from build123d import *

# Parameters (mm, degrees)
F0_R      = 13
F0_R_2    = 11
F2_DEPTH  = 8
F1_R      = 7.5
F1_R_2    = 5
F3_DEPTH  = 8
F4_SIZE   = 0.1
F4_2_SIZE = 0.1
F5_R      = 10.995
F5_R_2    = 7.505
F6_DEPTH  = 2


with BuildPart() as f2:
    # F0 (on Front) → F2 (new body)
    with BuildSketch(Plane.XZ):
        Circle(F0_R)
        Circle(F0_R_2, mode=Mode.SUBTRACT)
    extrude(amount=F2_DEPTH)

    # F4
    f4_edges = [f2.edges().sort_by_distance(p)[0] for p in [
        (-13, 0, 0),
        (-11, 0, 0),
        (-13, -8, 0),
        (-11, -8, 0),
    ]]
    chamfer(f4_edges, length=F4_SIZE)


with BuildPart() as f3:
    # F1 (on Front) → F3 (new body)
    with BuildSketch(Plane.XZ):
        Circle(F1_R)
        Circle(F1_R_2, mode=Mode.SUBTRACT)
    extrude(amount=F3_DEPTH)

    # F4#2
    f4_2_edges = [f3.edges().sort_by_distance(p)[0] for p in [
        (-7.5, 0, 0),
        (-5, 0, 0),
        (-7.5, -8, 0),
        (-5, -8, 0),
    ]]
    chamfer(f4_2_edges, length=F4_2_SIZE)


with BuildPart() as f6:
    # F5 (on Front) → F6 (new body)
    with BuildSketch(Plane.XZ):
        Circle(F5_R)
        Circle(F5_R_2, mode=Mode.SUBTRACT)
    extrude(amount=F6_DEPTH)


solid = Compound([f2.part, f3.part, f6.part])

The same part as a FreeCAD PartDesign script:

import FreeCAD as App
import Part
import Sketcher


def edges_at(feature, points):
    """Names of the edges that pass closest to the given points."""
    edges = feature.Shape.Edges
    near = lambda p: min(range(len(edges)), key=lambda i: edges[i].distToShape(Part.Vertex(*p))[0])
    return sorted({f"Edge{near(p) + 1}" for p in points})

doc = App.newDocument("Part")
body = doc.addObject("PartDesign::Body", "Body")

# Sketch on XZ plane
sketch1 = doc.addObject("Sketcher::SketchObject", "Sketch")
body.addObject(sketch1)
sketch1.AttachmentSupport = (doc.XZ_Plane, [""])
sketch1.MapMode = "FlatFace"
sketch1.addGeometry(Part.Circle(App.Vector(0, 0, 0), App.Vector(0, 0, 1), 13), False)
sketch1.addGeometry(Part.Circle(App.Vector(0, 0, 0), App.Vector(0, 0, 1), 11), False)
sketch1.addConstraint(Sketcher.Constraint("Coincident", 0, 3, -1, 1))
sketch1.addConstraint(Sketcher.Constraint("Coincident", 1, 3, -1, 1))
sketch1.addConstraint(Sketcher.Constraint("Diameter", 0, 26.0))
sketch1.addConstraint(Sketcher.Constraint("Diameter", 1, 22.0))
pad1 = doc.addObject("PartDesign::Pad", "Pad")
body.addObject(pad1)
pad1.Profile = sketch1
pad1.Length = 8
doc.recompute()

chamfer = doc.addObject("PartDesign::Chamfer", "Chamfer")
body.addObject(chamfer)
chamfer.Base = (pad1, edges_at(pad1, [
    (-13, 0, 0),
    (-11, 0, 0),
    (-13, -8, 0),
    (-11, -8, 0),
]))
chamfer.Size = 0.1
body2 = doc.addObject("PartDesign::Body", "Body001")

# Sketch on XZ plane
sketch2 = doc.addObject("Sketcher::SketchObject", "Sketch001")
body2.addObject(sketch2)
sketch2.AttachmentSupport = (doc.getObject("XZ_Plane001"), [""])
sketch2.MapMode = "FlatFace"
sketch2.addGeometry(Part.Circle(App.Vector(0, 0, 0), App.Vector(0, 0, 1), 8), False)
sketch2.addGeometry(Part.Circle(App.Vector(0, 0, 0), App.Vector(0, 0, 1), 5), False)
sketch2.addConstraint(Sketcher.Constraint("Coincident", 0, 3, -1, 1))
sketch2.addConstraint(Sketcher.Constraint("Coincident", 1, 3, -1, 1))
sketch2.addConstraint(Sketcher.Constraint("Diameter", 0, 15.0))
sketch2.addConstraint(Sketcher.Constraint("Diameter", 1, 10.0))
pad2 = doc.addObject("PartDesign::Pad", "Pad001")
body2.addObject(pad2)
pad2.Profile = sketch2
pad2.Length = 8
doc.recompute()

chamfer2 = doc.addObject("PartDesign::Chamfer", "Chamfer001")
body2.addObject(chamfer2)
chamfer2.Base = (pad2, edges_at(pad2, [
    (-7.5, 0, 0),
    (-5, 0, 0),
    (-7.5, -8, 0),
    (-5, -8, 0),
]))
chamfer2.Size = 0.1
body3 = doc.addObject("PartDesign::Body", "Body002")

# Sketch on XZ plane
sketch3 = doc.addObject("Sketcher::SketchObject", "Sketch002")
body3.addObject(sketch3)
sketch3.AttachmentSupport = (doc.getObject("XZ_Plane002"), [""])
sketch3.MapMode = "FlatFace"
sketch3.addGeometry(Part.Circle(App.Vector(0, 0, 0), App.Vector(0, 0, 1), 11), False)
sketch3.addGeometry(Part.Circle(App.Vector(0, 0, 0), App.Vector(0, 0, 1), 8), False)
sketch3.addConstraint(Sketcher.Constraint("Coincident", 0, 3, -1, 1))
sketch3.addConstraint(Sketcher.Constraint("Coincident", 1, 3, -1, 1))
sketch3.addConstraint(Sketcher.Constraint("Diameter", 0, 21.99))
sketch3.addConstraint(Sketcher.Constraint("Diameter", 1, 15.01))
pad3 = doc.addObject("PartDesign::Pad", "Pad002")
body3.addObject(pad3)
pad3.Profile = sketch3
pad3.Length = 2

doc.recompute()
